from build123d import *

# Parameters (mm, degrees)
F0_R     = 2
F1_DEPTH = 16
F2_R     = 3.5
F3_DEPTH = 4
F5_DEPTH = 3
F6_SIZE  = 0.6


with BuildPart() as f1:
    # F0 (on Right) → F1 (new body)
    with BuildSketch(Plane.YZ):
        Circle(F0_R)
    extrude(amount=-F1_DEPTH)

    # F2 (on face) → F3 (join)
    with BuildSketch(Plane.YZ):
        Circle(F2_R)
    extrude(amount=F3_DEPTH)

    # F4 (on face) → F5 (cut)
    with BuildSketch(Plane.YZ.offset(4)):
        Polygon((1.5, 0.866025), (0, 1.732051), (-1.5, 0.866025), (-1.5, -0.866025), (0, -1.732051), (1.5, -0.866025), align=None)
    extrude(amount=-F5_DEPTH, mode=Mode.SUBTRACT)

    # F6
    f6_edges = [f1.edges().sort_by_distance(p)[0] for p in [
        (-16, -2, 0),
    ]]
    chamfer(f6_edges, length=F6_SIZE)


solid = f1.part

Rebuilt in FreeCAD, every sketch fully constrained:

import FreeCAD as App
import Part
import Sketcher
from FreeCAD import Vector
Q = App.Units.Quantity


def edges_at(feature, points):
    """Names of the edges that pass closest to the given points."""
    edges = feature.Shape.Edges
    near = lambda p: min(range(len(edges)), key=lambda i: edges[i].distToShape(Part.Vertex(*p))[0])
    return sorted({f"Edge{near(p) + 1}" for p in points})

doc = App.newDocument("Part")
body = doc.addObject("PartDesign::Body", "Body")

# Sketch on YZ plane
sketch1 = doc.addObject("Sketcher::SketchObject", "Sketch")
body.addObject(sketch1)
sketch1.AttachmentSupport = (doc.YZ_Plane, [""])
sketch1.MapMode = "FlatFace"
sketch1.addGeometry(Part.Circle(Vector(0, 0, 0), Vector(0, 0, 1), 2), False)
sketch1.addConstraint([
    Sketcher.Constraint("Coincident", 0, 3, -1, 1),
    Sketcher.Constraint("Diameter", 0, Q("4 mm")),
])
pad1 = doc.addObject("PartDesign::Pad", "Pad")
body.addObject(pad1)
pad1.Profile = sketch1
pad1.Length = 16
pad1.Reversed = True

# Sketch on YZ plane
sketch2 = doc.addObject("Sketcher::SketchObject", "Sketch001")
body.addObject(sketch2)
sketch2.AttachmentSupport = (doc.YZ_Plane, [""])
sketch2.MapMode = "FlatFace"
sketch2.addGeometry(Part.Circle(Vector(0, 0, 0), Vector(0, 0, 1), 3.5), False)
sketch2.addConstraint([
    Sketcher.Constraint("Coincident", 0, 3, -1, 1),
    Sketcher.Constraint("Diameter", 0, Q("7 mm")),
])
pad2 = doc.addObject("PartDesign::Pad", "Pad001")
body.addObject(pad2)
pad2.Profile = sketch2
pad2.Length = 4

# Sketch on YZ plane
sketch3 = doc.addObject("Sketcher::SketchObject", "Sketch002")
body.addObject(sketch3)
sketch3.AttachmentSupport = (doc.YZ_Plane, [""])
sketch3.MapMode = "FlatFace"
sketch3.AttachmentOffset = App.Placement(Vector(0, 0, 4), App.Rotation())
sketch3.addGeometry([
    Part.LineSegment(Vector(1.5, 0.9, 0), Vector(0, 1.7, 0)),  # 0
    Part.LineSegment(Vector(0, 1.7, 0), Vector(-1.5, 0.9, 0)),  # 1
    Part.LineSegment(Vector(-1.5, 0.9, 0), Vector(-1.5, -0.9, 0)),  # 2
    Part.LineSegment(Vector(-1.5, -0.9, 0), Vector(0, -1.7, 0)),  # 3
    Part.LineSegment(Vector(0, -1.7, 0), Vector(1.5, -0.9, 0)),  # 4
    Part.LineSegment(Vector(1.5, -0.9, 0), Vector(1.5, 0.9, 0)),  # 5
], False)
sketch3.addConstraint([
    Sketcher.Constraint("Coincident", 0, 2, 1, 1),
    Sketcher.Constraint("Coincident", 1, 2, 2, 1),
    Sketcher.Constraint("Coincident", 2, 2, 3, 1),
    Sketcher.Constraint("Coincident", 3, 2, 4, 1),
    Sketcher.Constraint("Coincident", 4, 2, 5, 1),
    Sketcher.Constraint("Coincident", 5, 2, 0, 1),
    Sketcher.Constraint("Vertical", 2),
    Sketcher.Constraint("Vertical", 5),
    Sketcher.Constraint("Symmetric", 0, 2, 3, 2, -1, 1),
    Sketcher.Constraint("Symmetric", 1, 2, 4, 2, -1, 1),
    Sketcher.Constraint("PointOnObject", 0, 2, -2),
    Sketcher.Constraint("Parallel", 0, 3),
    Sketcher.Constraint("Horizontal", 2, 2, 4, 2),
    Sketcher.Constraint("Angle", 0, Q("149.999983 deg")),
    Sketcher.Constraint("DistanceX", 2, 2, 4, 2, Q("3 mm")),
    Sketcher.Constraint("DistanceY", 2, 2, 2, 1, Q("1.73205 mm")),
])
pocket1 = doc.addObject("PartDesign::Pocket", "Pocket")
body.addObject(pocket1)
pocket1.Profile = sketch3
pocket1.Length = 3
doc.recompute()

chamfer = doc.addObject("PartDesign::Chamfer", "Chamfer")
body.addObject(chamfer)
chamfer.Base = (pocket1, edges_at(pocket1, [(-16, -2, 0)]))
chamfer.Size = 0.6

doc.recompute()
